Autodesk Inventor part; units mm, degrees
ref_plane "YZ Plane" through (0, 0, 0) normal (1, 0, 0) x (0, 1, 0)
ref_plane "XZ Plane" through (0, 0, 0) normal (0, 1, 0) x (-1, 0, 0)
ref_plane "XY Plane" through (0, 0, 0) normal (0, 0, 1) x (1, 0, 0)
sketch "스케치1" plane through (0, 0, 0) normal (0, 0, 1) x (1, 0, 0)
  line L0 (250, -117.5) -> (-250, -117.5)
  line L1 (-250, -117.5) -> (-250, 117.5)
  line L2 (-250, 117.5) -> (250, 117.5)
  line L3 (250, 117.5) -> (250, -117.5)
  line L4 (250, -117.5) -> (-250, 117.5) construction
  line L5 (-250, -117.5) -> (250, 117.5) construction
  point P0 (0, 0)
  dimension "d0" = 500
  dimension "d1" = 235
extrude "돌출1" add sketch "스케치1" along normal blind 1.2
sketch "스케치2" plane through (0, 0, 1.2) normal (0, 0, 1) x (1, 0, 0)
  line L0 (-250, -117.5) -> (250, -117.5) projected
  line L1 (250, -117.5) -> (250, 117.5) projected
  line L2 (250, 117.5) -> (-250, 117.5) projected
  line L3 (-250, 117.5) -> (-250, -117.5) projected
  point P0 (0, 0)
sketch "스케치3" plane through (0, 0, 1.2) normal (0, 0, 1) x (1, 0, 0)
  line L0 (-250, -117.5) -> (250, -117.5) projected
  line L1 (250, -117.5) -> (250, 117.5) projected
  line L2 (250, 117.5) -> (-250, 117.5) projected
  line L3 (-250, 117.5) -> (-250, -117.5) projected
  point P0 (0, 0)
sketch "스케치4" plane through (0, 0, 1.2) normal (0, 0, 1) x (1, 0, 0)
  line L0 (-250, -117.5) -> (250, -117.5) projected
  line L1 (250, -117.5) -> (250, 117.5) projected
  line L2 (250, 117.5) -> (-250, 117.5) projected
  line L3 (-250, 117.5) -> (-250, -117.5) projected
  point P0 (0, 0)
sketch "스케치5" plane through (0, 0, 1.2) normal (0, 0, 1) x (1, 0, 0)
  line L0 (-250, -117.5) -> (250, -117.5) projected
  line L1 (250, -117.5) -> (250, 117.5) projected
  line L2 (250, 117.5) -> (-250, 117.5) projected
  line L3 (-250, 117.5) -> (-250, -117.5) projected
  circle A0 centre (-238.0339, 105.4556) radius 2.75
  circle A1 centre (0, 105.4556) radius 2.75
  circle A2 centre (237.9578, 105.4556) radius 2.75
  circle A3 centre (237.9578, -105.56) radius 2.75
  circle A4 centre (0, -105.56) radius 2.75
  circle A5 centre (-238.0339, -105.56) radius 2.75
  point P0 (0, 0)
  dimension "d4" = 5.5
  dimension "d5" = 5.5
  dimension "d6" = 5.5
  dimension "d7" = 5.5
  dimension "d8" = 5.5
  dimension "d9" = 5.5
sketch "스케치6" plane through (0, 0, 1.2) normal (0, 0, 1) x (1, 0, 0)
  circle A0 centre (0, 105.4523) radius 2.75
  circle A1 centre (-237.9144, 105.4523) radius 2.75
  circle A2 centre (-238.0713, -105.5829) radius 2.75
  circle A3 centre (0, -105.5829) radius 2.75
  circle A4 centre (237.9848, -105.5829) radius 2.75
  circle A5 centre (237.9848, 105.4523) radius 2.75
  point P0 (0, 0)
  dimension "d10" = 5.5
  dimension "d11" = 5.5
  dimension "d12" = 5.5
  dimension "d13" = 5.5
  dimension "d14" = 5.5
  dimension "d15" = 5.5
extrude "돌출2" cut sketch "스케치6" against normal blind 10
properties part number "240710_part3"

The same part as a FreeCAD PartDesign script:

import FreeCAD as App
import Part
import Sketcher

V = App.Vector


def add_polygon(sketch, points):
    """Adds a closed chain of lines whose ends are joined by coincident constraints."""
    first, n = sketch.GeometryCount, len(points)
    for a, b in zip(points, points[1:] + points[:1]):
        sketch.addGeometry(Part.LineSegment(App.Vector(*a, 0), App.Vector(*b, 0)), False)
    for i in range(n):
        sketch.addConstraint(Sketcher.Constraint("Coincident", first + i, 2, first + (i + 1) % n, 1))

doc = App.newDocument("Part")
params = doc.addObject("Spreadsheet::Sheet", "Params")
for row, (alias, value) in enumerate([
    ("sketch1_width", "500 mm"),
    ("sketch1_height", "235 mm"),
    ("pad1_length", "1.2 mm"),
    ("sketch2_diameter", "5.5 mm"),
    ("pocket1_length", "10 mm"),
], start=1):
    params.set(f"A{row}", alias)
    params.set(f"B{row}", "=" + value)
    params.setAlias(f"B{row}", alias)

body = doc.addObject("PartDesign::Body", "Body")

sketch1 = doc.addObject("Sketcher::SketchObject", "Sketch")
body.addObject(sketch1)
sketch1.AttachmentSupport = (doc.XY_Plane, [""])
sketch1.MapMode = "FlatFace"
add_polygon(sketch1, [(-250, -118), (250, -118), (250, 118), (-250, 118)])
sketch1.addConstraint([
    Sketcher.Constraint("Horizontal", 0),
    Sketcher.Constraint("Vertical", 1),
    Sketcher.Constraint("Horizontal", 2),
    Sketcher.Constraint("Vertical", 3),
    Sketcher.Constraint("Symmetric", 0, 2, 2, 2, -1, 1),
    Sketcher.Constraint("DistanceX", 0, 1, 0, 2, 500.0),
    Sketcher.Constraint("DistanceY", 1, 1, 1, 2, 235.0),
])
sketch1.setExpression("Constraints[9]", "Params.sketch1_width")
sketch1.setExpression("Constraints[10]", "Params.sketch1_height")
pad1 = doc.addObject("PartDesign::Pad", "Pad")
body.addObject(pad1)
pad1.Profile = sketch1
pad1.setExpression("Length", "Params.pad1_length")

sketch2 = doc.addObject("Sketcher::SketchObject", "Sketch001")
body.addObject(sketch2)
sketch2.AttachmentSupport = (doc.XY_Plane, [""])
sketch2.MapMode = "FlatFace"
sketch2.AttachmentOffset = App.Placement(V(0, 0, 1.2), App.Rotation())
sketch2.addGeometry([
    Part.Circle(V(0, 105.5, 0), V(0, 0, 1), 2.8),
    Part.Circle(V(-237.9, 105.5, 0), V(0, 0, 1), 2.8),
    Part.Circle(V(-238.1, -105.6, 0), V(0, 0, 1), 2.8),
    Part.Circle(V(0, -105.6, 0), V(0, 0, 1), 2.8),
    Part.Circle(V(238, -105.6, 0), V(0, 0, 1), 2.8),
    Part.Circle(V(238, 105.5, 0), V(0, 0, 1), 2.8),
], False)
sketch2.addConstraint([
    Sketcher.Constraint("Equal", 0, 1),
    Sketcher.Constraint("Equal", 1, 2),
    Sketcher.Constraint("Equal", 2, 3),
    Sketcher.Constraint("Equal", 3, 4),
    Sketcher.Constraint("Equal", 4, 5),
    Sketcher.Constraint("PointOnObject", 0, 3, -2),
    Sketcher.Constraint("PointOnObject", 3, 3, -2),
    Sketcher.Constraint("Horizontal", 0, 3, 1, 3),
    Sketcher.Constraint("Horizontal", 2, 3, 3, 3),
    Sketcher.Constraint("Horizontal", 3, 3, 4, 3),
    Sketcher.Constraint("Horizontal", 1, 3, 5, 3),
    Sketcher.Constraint("Vertical", 4, 3, 5, 3),
    Sketcher.Constraint("Diameter", 0, 5.5),
    Sketcher.Constraint("DistanceY", 2, 3, -1, 1, 105.583),
    Sketcher.Constraint("DistanceX", 2, 3, 1, 3, 0.157),
    Sketcher.Constraint("DistanceX", 2, 3, 4, 3, 476.056),
    Sketcher.Constraint("DistanceY", -1, 1, 0, 3, 105.4523),
    Sketcher.Constraint("DistanceX", 1, 3, -1, 1, 237.9144),
])
sketch2.setExpression("Constraints[12]", "Params.sketch2_diameter")
pocket1 = doc.addObject("PartDesign::Pocket", "Pocket")
body.addObject(pocket1)
pocket1.Profile = sketch2
pocket1.setExpression("Length", "Params.pocket1_length")

doc.recompute()
